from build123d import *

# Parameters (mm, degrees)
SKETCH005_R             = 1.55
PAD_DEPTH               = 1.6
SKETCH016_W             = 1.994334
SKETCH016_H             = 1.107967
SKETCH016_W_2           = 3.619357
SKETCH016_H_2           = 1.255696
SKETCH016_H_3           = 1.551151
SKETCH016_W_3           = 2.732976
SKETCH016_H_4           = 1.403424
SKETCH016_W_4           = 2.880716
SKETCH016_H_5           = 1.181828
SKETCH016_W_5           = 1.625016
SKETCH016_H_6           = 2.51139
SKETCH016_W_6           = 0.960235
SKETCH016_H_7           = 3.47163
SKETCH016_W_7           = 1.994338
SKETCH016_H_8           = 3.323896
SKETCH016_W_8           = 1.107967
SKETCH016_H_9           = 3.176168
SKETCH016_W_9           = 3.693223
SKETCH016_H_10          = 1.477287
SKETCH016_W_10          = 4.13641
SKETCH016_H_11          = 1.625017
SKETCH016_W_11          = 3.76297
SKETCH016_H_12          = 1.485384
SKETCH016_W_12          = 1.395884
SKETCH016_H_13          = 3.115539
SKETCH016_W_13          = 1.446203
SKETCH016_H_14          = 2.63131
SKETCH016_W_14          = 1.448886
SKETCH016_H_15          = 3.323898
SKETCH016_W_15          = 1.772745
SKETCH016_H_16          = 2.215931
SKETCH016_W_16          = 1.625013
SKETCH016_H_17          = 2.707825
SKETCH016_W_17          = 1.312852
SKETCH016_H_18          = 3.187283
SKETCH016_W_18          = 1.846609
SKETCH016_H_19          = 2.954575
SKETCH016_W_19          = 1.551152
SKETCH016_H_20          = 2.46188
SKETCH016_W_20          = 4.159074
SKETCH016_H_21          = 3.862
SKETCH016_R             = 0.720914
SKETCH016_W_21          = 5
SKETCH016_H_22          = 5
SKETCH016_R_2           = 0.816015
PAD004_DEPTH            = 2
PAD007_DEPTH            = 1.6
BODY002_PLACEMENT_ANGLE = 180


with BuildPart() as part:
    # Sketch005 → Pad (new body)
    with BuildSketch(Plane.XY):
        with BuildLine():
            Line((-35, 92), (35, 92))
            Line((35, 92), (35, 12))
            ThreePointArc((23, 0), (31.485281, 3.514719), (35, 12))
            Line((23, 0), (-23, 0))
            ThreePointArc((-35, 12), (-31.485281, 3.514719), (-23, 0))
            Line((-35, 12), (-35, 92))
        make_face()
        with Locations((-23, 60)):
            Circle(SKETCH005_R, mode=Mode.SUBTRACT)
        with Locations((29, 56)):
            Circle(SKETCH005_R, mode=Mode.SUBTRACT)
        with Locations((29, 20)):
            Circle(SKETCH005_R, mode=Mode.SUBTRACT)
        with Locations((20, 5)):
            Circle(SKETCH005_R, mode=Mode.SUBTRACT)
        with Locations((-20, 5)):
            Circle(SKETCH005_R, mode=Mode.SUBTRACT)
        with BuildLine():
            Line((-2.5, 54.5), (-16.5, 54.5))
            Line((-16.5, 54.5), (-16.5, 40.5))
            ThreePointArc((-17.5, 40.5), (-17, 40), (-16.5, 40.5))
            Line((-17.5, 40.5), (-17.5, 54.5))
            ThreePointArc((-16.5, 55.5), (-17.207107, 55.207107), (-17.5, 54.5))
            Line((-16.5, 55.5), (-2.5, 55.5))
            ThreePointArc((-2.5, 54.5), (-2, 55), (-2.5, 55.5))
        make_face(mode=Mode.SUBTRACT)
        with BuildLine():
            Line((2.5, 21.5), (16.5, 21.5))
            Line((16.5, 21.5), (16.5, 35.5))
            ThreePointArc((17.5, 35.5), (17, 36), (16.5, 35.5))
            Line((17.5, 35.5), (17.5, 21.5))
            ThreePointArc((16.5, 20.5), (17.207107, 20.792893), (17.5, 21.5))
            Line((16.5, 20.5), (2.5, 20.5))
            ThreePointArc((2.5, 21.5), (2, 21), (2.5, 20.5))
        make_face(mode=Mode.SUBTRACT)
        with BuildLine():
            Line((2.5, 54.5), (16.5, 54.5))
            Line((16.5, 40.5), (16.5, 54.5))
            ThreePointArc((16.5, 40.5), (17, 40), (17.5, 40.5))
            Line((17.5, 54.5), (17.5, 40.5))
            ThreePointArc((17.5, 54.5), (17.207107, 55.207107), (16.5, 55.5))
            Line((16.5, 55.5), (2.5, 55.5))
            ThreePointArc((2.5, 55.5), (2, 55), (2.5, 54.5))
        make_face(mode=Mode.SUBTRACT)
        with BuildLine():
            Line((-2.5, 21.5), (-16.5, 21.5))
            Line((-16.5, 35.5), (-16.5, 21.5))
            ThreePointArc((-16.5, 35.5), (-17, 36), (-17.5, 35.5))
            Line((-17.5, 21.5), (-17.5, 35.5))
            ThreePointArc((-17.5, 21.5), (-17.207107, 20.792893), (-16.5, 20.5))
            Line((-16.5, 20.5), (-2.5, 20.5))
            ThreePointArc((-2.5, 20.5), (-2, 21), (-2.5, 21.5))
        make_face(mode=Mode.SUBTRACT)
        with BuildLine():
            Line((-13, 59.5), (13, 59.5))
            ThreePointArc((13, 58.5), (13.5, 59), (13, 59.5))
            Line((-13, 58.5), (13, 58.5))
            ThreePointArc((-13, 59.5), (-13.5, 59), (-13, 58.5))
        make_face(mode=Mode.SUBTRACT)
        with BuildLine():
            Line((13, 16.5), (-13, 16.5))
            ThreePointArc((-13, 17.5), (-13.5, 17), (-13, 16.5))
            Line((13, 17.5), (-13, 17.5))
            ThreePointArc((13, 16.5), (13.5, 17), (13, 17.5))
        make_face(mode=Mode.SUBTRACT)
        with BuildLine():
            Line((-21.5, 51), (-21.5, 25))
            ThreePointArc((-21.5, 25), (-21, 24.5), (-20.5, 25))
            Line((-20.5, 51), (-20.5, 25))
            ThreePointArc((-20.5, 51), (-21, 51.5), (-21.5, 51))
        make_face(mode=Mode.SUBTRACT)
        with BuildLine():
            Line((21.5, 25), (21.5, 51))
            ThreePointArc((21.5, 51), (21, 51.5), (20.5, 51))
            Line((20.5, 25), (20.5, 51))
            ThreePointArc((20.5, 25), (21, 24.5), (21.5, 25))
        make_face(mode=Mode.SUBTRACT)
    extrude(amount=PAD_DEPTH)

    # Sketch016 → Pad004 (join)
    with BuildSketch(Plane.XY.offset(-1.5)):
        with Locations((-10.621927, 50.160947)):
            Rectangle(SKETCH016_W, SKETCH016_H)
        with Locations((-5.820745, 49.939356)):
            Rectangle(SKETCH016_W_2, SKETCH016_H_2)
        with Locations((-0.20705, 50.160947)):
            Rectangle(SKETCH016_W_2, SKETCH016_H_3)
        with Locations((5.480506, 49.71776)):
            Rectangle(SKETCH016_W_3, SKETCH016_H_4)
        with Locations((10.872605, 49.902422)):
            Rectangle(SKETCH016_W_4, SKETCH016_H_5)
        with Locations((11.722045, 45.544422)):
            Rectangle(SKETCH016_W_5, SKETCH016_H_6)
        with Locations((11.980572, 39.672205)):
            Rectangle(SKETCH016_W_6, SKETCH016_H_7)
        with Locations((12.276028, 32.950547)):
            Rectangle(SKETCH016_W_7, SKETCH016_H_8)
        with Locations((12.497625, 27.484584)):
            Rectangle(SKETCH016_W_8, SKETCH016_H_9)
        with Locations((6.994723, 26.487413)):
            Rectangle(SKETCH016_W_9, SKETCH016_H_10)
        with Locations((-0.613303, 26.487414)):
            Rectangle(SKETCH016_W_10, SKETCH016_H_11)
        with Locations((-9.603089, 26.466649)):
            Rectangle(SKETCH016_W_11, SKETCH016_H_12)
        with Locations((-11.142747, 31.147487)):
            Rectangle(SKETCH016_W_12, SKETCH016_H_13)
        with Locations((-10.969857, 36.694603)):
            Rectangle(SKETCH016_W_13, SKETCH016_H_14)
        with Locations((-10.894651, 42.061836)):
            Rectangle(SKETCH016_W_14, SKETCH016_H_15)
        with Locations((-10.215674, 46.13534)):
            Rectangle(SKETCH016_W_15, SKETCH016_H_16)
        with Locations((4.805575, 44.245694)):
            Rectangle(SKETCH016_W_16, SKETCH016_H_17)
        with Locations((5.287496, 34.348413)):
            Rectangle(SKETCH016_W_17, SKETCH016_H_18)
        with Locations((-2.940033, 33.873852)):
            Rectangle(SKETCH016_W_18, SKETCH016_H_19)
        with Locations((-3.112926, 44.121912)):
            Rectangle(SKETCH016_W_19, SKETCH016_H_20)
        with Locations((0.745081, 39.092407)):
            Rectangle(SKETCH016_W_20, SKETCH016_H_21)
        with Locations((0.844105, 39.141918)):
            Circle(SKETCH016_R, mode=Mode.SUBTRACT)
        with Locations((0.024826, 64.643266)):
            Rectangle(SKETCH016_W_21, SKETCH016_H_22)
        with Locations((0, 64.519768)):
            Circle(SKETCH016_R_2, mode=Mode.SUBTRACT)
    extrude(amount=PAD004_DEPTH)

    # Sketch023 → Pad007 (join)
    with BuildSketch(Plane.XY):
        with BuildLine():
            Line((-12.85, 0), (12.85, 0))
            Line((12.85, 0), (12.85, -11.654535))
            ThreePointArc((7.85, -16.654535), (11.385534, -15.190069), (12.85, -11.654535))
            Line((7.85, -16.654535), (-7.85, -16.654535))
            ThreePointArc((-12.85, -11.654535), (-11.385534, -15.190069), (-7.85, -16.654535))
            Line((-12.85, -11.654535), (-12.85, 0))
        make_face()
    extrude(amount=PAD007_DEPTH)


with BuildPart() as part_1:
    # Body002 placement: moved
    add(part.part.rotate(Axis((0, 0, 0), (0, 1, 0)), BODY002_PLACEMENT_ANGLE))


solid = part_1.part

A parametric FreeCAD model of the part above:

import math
import FreeCAD as App
import Part
import Sketcher

doc = App.newDocument("Part")
params = doc.addObject("Spreadsheet::Sheet", "Params")
for row, (alias, value) in enumerate([
    ("sketch1_radius", "12.000001 mm"),
    ("sketch1_radius2", "0.999999 mm"),
    ("sketch1_diameter", "3.1 mm"),
    ("sketch1_width", "70 mm"),
    ("sketch1_width2", "14 mm"),
    ("pad1_length", "1.6 mm"),
    ("sketch2_width", "5 mm"),
    ("pad2_length", "2 mm"),
    ("sketch3_radius", "5 mm"),
    ("sketch3_width", "25.7 mm"),
    ("pad3_length", "1.6 mm"),
], start=1):
    params.set(f"A{row}", alias)
    params.set(f"B{row}", "=" + value)
    params.setAlias(f"B{row}", alias)

body = doc.addObject("PartDesign::Body", "Body")

# Sketch on XY plane
sketch1 = body.newObject("Sketcher::SketchObject", "Sketch")
sketch1.AttachmentSupport = (doc.getObject("XY_Plane"), [""])
sketch1.MapMode = "FlatFace"
sketch1.addGeometry([
    Part.LineSegment(App.Vector(35, 92, 0), App.Vector(-35, 92, 0)),  # 0
    Part.LineSegment(App.Vector(-35, 92, 0), App.Vector(-35, 12, 0)),  # 1
    Part.ArcOfCircle(Part.Circle(App.Vector(-23, 12, 0), App.Vector(0, 0, 1), 12), math.radians(-180), math.radians(-90)),  # 2
    Part.LineSegment(App.Vector(-23, 0, 0), App.Vector(23, 0, 0)),  # 3
    Part.ArcOfCircle(Part.Circle(App.Vector(23, 12, 0), App.Vector(0, 0, 1), 12), math.radians(-90), math.radians(0)),  # 4
    Part.LineSegment(App.Vector(35, 12, 0), App.Vector(35, 92, 0)),  # 5
    Part.Circle(App.Vector(20, 5, 0), App.Vector(0, 0, 1), 1.6),  # 6
    Part.Circle(App.Vector(29, 20, 0), App.Vector(0, 0, 1), 1.6),  # 7
    Part.LineSegment(App.Vector(2.5, 21.5, 0), App.Vector(16.5, 21.5, 0)),  # 8
    Part.LineSegment(App.Vector(16.5, 21.5, 0), App.Vector(16.5, 35.5, 0)),  # 9
    Part.ArcOfCircle(Part.Circle(App.Vector(17, 35.5, 0), App.Vector(0, 0, 1), 0.5), math.radians(0), math.radians(180)),  # 10
    Part.LineSegment(App.Vector(17.5, 35.5, 0), App.Vector(17.5, 21.5, 0)),  # 11
    Part.ArcOfCircle(Part.Circle(App.Vector(16.5, 21.5, 0), App.Vector(0, 0, 1), 1), math.radians(-90), math.radians(0)),  # 12
    Part.LineSegment(App.Vector(16.5, 20.5, 0), App.Vector(2.5, 20.5, 0)),  # 13
    Part.ArcOfCircle(Part.Circle(App.Vector(2.5, 21, 0), App.Vector(0, 0, 1), 0.5), math.radians(90), math.radians(270)),  # 14
    Part.LineSegment(App.Vector(13, 16.5, 0), App.Vector(-13, 16.5, 0)),  # 15
    Part.ArcOfCircle(Part.Circle(App.Vector(-13, 17, 0), App.Vector(0, 0, 1), 0.5), math.radians(90), math.radians(270)),  # 16
    Part.LineSegment(App.Vector(-13, 17.5, 0), App.Vector(13, 17.5, 0)),  # 17
    Part.ArcOfCircle(Part.Circle(App.Vector(13, 17, 0), App.Vector(0, 0, 1), 0.5), math.radians(-90), math.radians(90)),  # 18
    Part.Circle(App.Vector(-20, 5, 0), App.Vector(0, 0, 1), 1.6),  # 19
    Part.ArcOfCircle(Part.Circle(App.Vector(-2.5, 21, 0), App.Vector(0, 0, 1), 0.5), math.radians(-90), math.radians(90)),  # 20
    Part.LineSegment(App.Vector(-2.5, 20.5, 0), App.Vector(-16.5, 20.5, 0)),  # 21
    Part.ArcOfCircle(Part.Circle(App.Vector(-16.5, 21.5, 0), App.Vector(0, 0, 1), 1), math.radians(180), math.radians(270)),  # 22
    Part.LineSegment(App.Vector(-17.5, 21.5, 0), App.Vector(-17.5, 35.5, 0)),  # 23
    Part.ArcOfCircle(Part.Circle(App.Vector(-17, 35.5, 0), App.Vector(0, 0, 1), 0.5), math.radians(0), math.radians(180)),  # 24
    Part.LineSegment(App.Vector(-16.5, 35.5, 0), App.Vector(-16.5, 21.5, 0)),  # 25
    Part.LineSegment(App.Vector(-16.5, 21.5, 0), App.Vector(-2.5, 21.5, 0)),  # 26
    Part.ArcOfCircle(Part.Circle(App.Vector(21, 25, 0), App.Vector(0, 0, 1), 0.5), math.radians(180), math.radians(360)),  # 27
    Part.LineSegment(App.Vector(20.5, 25, 0), App.Vector(20.5, 51, 0)),  # 28
    Part.ArcOfCircle(Part.Circle(App.Vector(21, 51, 0), App.Vector(0, 0, 1), 0.5), math.radians(0), math.radians(180)),  # 29
    Part.LineSegment(App.Vector(21.5, 51, 0), App.Vector(21.5, 25, 0)),  # 30
    Part.Circle(App.Vector(29, 56, 0), App.Vector(0, 0, 1), 1.6),  # 31
    Part.ArcOfCircle(Part.Circle(App.Vector(2.5, 55, 0), App.Vector(0, 0, 1), 0.5), math.radians(90), math.radians(270)),  # 32
    Part.LineSegment(App.Vector(2.5, 55.5, 0), App.Vector(16.5, 55.5, 0)),  # 33
    Part.ArcOfCircle(Part.Circle(App.Vector(16.5, 54.5, 0), App.Vector(0, 0, 1), 1), math.radians(0), math.radians(90)),  # 34
    Part.LineSegment(App.Vector(17.5, 54.5, 0), App.Vector(17.5, 40.5, 0)),  # 35
    Part.ArcOfCircle(Part.Circle(App.Vector(17, 40.5, 0), App.Vector(0, 0, 1), 0.5), math.radians(180), math.radians(360)),  # 36
    Part.LineSegment(App.Vector(16.5, 40.5, 0), App.Vector(16.5, 54.5, 0)),  # 37
    Part.LineSegment(App.Vector(16.5, 54.5, 0), App.Vector(2.5, 54.5, 0)),  # 38
    Part.ArcOfCircle(Part.Circle(App.Vector(-21, 51, 0), App.Vector(0, 0, 1), 0.5), math.radians(0), math.radians(180)),  # 39
    Part.LineSegment(App.Vector(-20.5, 51, 0), App.Vector(-20.5, 25, 0)),  # 40
    Part.ArcOfCircle(Part.Circle(App.Vector(-21, 25, 0), App.Vector(0, 0, 1), 0.5), math.radians(180), math.radians(360)),  # 41
    Part.LineSegment(App.Vector(-21.5, 25, 0), App.Vector(-21.5, 51, 0)),  # 42
    Part.LineSegment(App.Vector(-2.5, 54.5, 0), App.Vector(-16.5, 54.5, 0)),  # 43
    Part.LineSegment(App.Vector(-16.5, 54.5, 0), App.Vector(-16.5, 40.5, 0)),  # 44
    Part.ArcOfCircle(Part.Circle(App.Vector(-17, 40.5, 0), App.Vector(0, 0, 1), 0.5), math.radians(180), math.radians(360)),  # 45
    Part.LineSegment(App.Vector(-17.5, 40.5, 0), App.Vector(-17.5, 54.5, 0)),  # 46
    Part.ArcOfCircle(Part.Circle(App.Vector(-16.5, 54.5, 0), App.Vector(0, 0, 1), 1), math.radians(90), math.radians(180)),  # 47
    Part.LineSegment(App.Vector(-16.5, 55.5, 0), App.Vector(-2.5, 55.5, 0)),  # 48
    Part.ArcOfCircle(Part.Circle(App.Vector(-2.5, 55, 0), App.Vector(0, 0, 1), 0.5), math.radians(-90), math.radians(90)),  # 49
    Part.LineSegment(App.Vector(-13, 59.5, 0), App.Vector(13, 59.5, 0)),  # 50
    Part.ArcOfCircle(Part.Circle(App.Vector(13, 59, 0), App.Vector(0, 0, 1), 0.5), math.radians(-90), math.radians(90)),  # 51
    Part.LineSegment(App.Vector(13, 58.5, 0), App.Vector(-13, 58.5, 0)),  # 52
    Part.ArcOfCircle(Part.Circle(App.Vector(-13, 59, 0), App.Vector(0, 0, 1), 0.5), math.radians(90), math.radians(270)),  # 53
    Part.Circle(App.Vector(-23, 60, 0), App.Vector(0, 0, 1), 1.6),  # 54
], False)
sketch1.addConstraint([
    Sketcher.Constraint("Coincident", 0, 2, 1, 1),
    Sketcher.Constraint("Tangent", 1, 2, 2, 1),
    Sketcher.Constraint("Tangent", 2, 2, 3, 1),
    Sketcher.Constraint("Tangent", 3, 2, 4, 1),
    Sketcher.Constraint("Tangent", 4, 2, 5, 1),
    Sketcher.Constraint("Coincident", 5, 2, 0, 1),
    Sketcher.Constraint("Coincident", 8, 2, 9, 1),
    Sketcher.Constraint("Tangent", 9, 2, 10, 2),
    Sketcher.Constraint("Tangent", 10, 1, 11, 1),
    Sketcher.Constraint("Tangent", 11, 2, 12, 2),
    Sketcher.Constraint("Tangent", 12, 1, 13, 1),
    Sketcher.Constraint("Tangent", 13, 2, 14, 2),
    Sketcher.Constraint("Tangent", 14, 1, 8, 1),
    Sketcher.Constraint("Tangent", 15, 2, 16, 2),
    Sketcher.Constraint("Tangent", 16, 1, 17, 1),
    Sketcher.Constraint("Tangent", 17, 2, 18, 2),
    Sketcher.Constraint("Tangent", 18, 1, 15, 1),
    Sketcher.Constraint("Tangent", 20, 1, 21, 1),
    Sketcher.Constraint("Tangent", 21, 2, 22, 2),
    Sketcher.Constraint("Tangent", 22, 1, 23, 1),
    Sketcher.Constraint("Tangent", 23, 2, 24, 2),
    Sketcher.Constraint("Tangent", 24, 1, 25, 1),
    Sketcher.Constraint("Coincident", 25, 2, 26, 1),
    Sketcher.Constraint("Tangent", 26, 2, 20, 2),
    Sketcher.Constraint("Tangent", 27, 1, 28, 1),
    Sketcher.Constraint("Tangent", 28, 2, 29, 2),
    Sketcher.Constraint("Tangent", 29, 1, 30, 1),
    Sketcher.Constraint("Tangent", 30, 2, 27, 2),
    Sketcher.Constraint("Tangent", 32, 1, 33, 1),
    Sketcher.Constraint("Tangent", 33, 2, 34, 2),
    Sketcher.Constraint("Tangent", 34, 1, 35, 1),
    Sketcher.Constraint("Tangent", 35, 2, 36, 2),
    Sketcher.Constraint("Tangent", 36, 1, 37, 1),
    Sketcher.Constraint("Coincident", 37, 2, 38, 1),
    Sketcher.Constraint("Tangent", 38, 2, 32, 2),
    Sketcher.Constraint("Tangent", 39, 1, 40, 1),
    Sketcher.Constraint("Tangent", 40, 2, 41, 2),
    Sketcher.Constraint("Tangent", 41, 1, 42, 1),
    Sketcher.Constraint("Tangent", 42, 2, 39, 2),
    Sketcher.Constraint("Coincident", 43, 2, 44, 1),
    Sketcher.Constraint("Tangent", 44, 2, 45, 2),
    Sketcher.Constraint("Tangent", 45, 1, 46, 1),
    Sketcher.Constraint("Tangent", 46, 2, 47, 2),
    Sketcher.Constraint("Tangent", 47, 1, 48, 1),
    Sketcher.Constraint("Tangent", 48, 2, 49, 2),
    Sketcher.Constraint("Tangent", 49, 1, 43, 1),
    Sketcher.Constraint("Tangent", 50, 2, 51, 2),
    Sketcher.Constraint("Tangent", 51, 1, 52, 1),
    Sketcher.Constraint("Tangent", 52, 2, 53, 2),
    Sketcher.Constraint("Tangent", 53, 1, 50, 1),
    Sketcher.Constraint("Horizontal", 0),
    Sketcher.Constraint("Vertical", 1),
    Sketcher.Constraint("Horizontal", 3),
    Sketcher.Constraint("Vertical", 5),
    Sketcher.Constraint("Horizontal", 8),
    Sketcher.Constraint("Vertical", 9),
    Sketcher.Constraint("Vertical", 11),
    Sketcher.Constraint("Horizontal", 13),
    Sketcher.Constraint("Horizontal", 15),
    Sketcher.Constraint("Horizontal", 17),
    Sketcher.Constraint("Horizontal", 21),
    Sketcher.Constraint("Vertical", 23),
    Sketcher.Constraint("Vertical", 25),
    Sketcher.Constraint("Horizontal", 26),
    Sketcher.Constraint("Vertical", 28),
    Sketcher.Constraint("Vertical", 30),
    Sketcher.Constraint("Horizontal", 33),
    Sketcher.Constraint("Vertical", 35),
    Sketcher.Constraint("Vertical", 37),
    Sketcher.Constraint("Horizontal", 38),
    Sketcher.Constraint("Vertical", 40),
    Sketcher.Constraint("Vertical", 42),
    Sketcher.Constraint("Horizontal", 43),
    Sketcher.Constraint("Vertical", 44),
    Sketcher.Constraint("Vertical", 46),
    Sketcher.Constraint("Horizontal", 48),
    Sketcher.Constraint("Horizontal", 50),
    Sketcher.Constraint("Horizontal", 52),
    Sketcher.Constraint("Coincident", 8, 2, 12, 3),
    Sketcher.Constraint("Coincident", 25, 2, 22, 3),
    Sketcher.Constraint("Coincident", 37, 2, 34, 3),
    Sketcher.Constraint("Coincident", 43, 2, 47, 3),
    Sketcher.Constraint("Equal", 2, 4),
    Sketcher.Constraint("Equal", 6, 7),
    Sketcher.Constraint("Equal", 14, 16),
    Sketcher.Constraint("Equal", 7, 19),
    Sketcher.Constraint("Equal", 18, 20),
    Sketcher.Constraint("Equal", 24, 27),
    Sketcher.Constraint("Equal", 19, 31),
    Sketcher.Constraint("Equal", 29, 32),
    Sketcher.Constraint("Equal", 36, 39),
    Sketcher.Constraint("Equal", 41, 45),
    Sketcher.Constraint("Equal", 49, 51),
    Sketcher.Constraint("Equal", 31, 54),
    Sketcher.Constraint("Symmetric", 2, 2, 3, 2, -1, 1),
    Sketcher.Constraint("Symmetric", 6, 3, 19, 3, -2),
    Sketcher.Constraint("Symmetric", 14, 3, 20, 3, -2),
    Sketcher.Constraint("Symmetric", 10, 3, 24, 3, -2),
    Sketcher.Constraint("Symmetric", 29, 3, 39, 3, -2),
    Sketcher.Constraint("Symmetric", 36, 3, 45, 3, -2),
    Sketcher.Constraint("Symmetric", 32, 3, 49, 3, -2),
    Sketcher.Constraint("Horizontal", 27, 3, 41, 3),
    Sketcher.Constraint("Vertical", 7, 3, 31, 3),
    Sketcher.Constraint("Vertical", 14, 3, 32, 3),
    Sketcher.Constraint("Vertical", 12, 3, 34, 3),
    Sketcher.Constraint("Vertical", 18, 3, 51, 3),
    Sketcher.Constraint("Vertical", 16, 3, 53, 3),
    Sketcher.Constraint("Vertical", 2, 3, 54, 3),
    Sketcher.Constraint("Equal", 48, 9),
    Sketcher.Constraint("Equal", 52, 28),
    Sketcher.Constraint("Equal", 25, 35),
    Sketcher.Constraint("Radius", 2, 12.000001),
    Sketcher.Constraint("Radius", 12, 0.999999),
    Sketcher.Constraint("Diameter", 6, 3.1),
    Sketcher.Constraint("DistanceX", 0, 2, 0, 1, 70.0),
    Sketcher.Constraint("DistanceX", 8, 1, 8, 2, 14.0),
    Sketcher.Constraint("DistanceX", 15, 2, 15, 1, 26.0),
    Sketcher.Constraint("DistanceY", 1, 2, 1, 1, 80.0),
    Sketcher.Constraint("DistanceX", -1, 1, 6, 3, 20.0),
    Sketcher.Constraint("DistanceY", -1, 1, 6, 3, 5.0),
    Sketcher.Constraint("DistanceX", -1, 1, 7, 3, 29.0),
    Sketcher.Constraint("DistanceY", -1, 1, 7, 3, 20.0),
    Sketcher.Constraint("DistanceX", -1, 1, 10, 3, 17.0),
    Sketcher.Constraint("DistanceY", -1, 1, 14, 3, 21.0),
    Sketcher.Constraint("DistanceX", 16, 3, -1, 1, 13.0),
    Sketcher.Constraint("DistanceY", -1, 1, 16, 3, 17.0),
    Sketcher.Constraint("DistanceX", -1, 1, 27, 3, 21.0),
    Sketcher.Constraint("DistanceY", -1, 1, 27, 3, 25.0),
    Sketcher.Constraint("DistanceY", -1, 1, 31, 3, 56.0),
    Sketcher.Constraint("DistanceY", -1, 1, 32, 3, 55.0),
    Sketcher.Constraint("DistanceY", -1, 1, 51, 3, 59.0),
    Sketcher.Constraint("DistanceY", -1, 1, 54, 3, 60.0),
])
sketch1.setExpression("Constraints[111]", "Params.sketch1_radius")
sketch1.setExpression("Constraints[112]", "Params.sketch1_radius2")
sketch1.setExpression("Constraints[113]", "Params.sketch1_diameter")
sketch1.setExpression("Constraints[114]", "Params.sketch1_width")
sketch1.setExpression("Constraints[115]", "Params.sketch1_width2")
pad1 = body.newObject("PartDesign::Pad", "Pad")
pad1.Profile = sketch1
pad1.setExpression("Length", "Params.pad1_length")

# Sketch on XY plane
sketch2 = body.newObject("Sketcher::SketchObject", "Sketch001")
sketch2.AttachmentSupport = (doc.getObject("XY_Plane"), [""])
sketch2.MapMode = "FlatFace"
sketch2.AttachmentOffset = App.Placement(App.Vector(0, 0, -1.5), App.Rotation())
sketch2.addGeometry([
    Part.LineSegment(App.Vector(-11.6, 50.7, 0), App.Vector(-11.6, 49.6, 0)),  # 0
    Part.LineSegment(App.Vector(-11.6, 49.6, 0), App.Vector(-9.6, 49.6, 0)),  # 1
    Part.LineSegment(App.Vector(-9.6, 49.6, 0), App.Vector(-9.6, 50.7, 0)),  # 2
    Part.LineSegment(App.Vector(-9.6, 50.7, 0), App.Vector(-11.6, 50.7, 0)),  # 3
    Part.LineSegment(App.Vector(-7.6, 50.6, 0), App.Vector(-7.6, 49.3, 0)),  # 4
    Part.LineSegment(App.Vector(-7.6, 49.3, 0), App.Vector(-4, 49.3, 0)),  # 5
    Part.LineSegment(App.Vector(-4, 49.3, 0), App.Vector(-4, 50.6, 0)),  # 6
    Part.LineSegment(App.Vector(-4, 50.6, 0), App.Vector(-7.6, 50.6, 0)),  # 7
    Part.LineSegment(App.Vector(-2, 50.9, 0), App.Vector(-2, 49.4, 0)),  # 8
    Part.LineSegment(App.Vector(-2, 49.4, 0), App.Vector(1.6, 49.4, 0)),  # 9
    Part.LineSegment(App.Vector(1.6, 49.4, 0), App.Vector(1.6, 50.9, 0)),  # 10
    Part.LineSegment(App.Vector(1.6, 50.9, 0), App.Vector(-2, 50.9, 0)),  # 11
    Part.LineSegment(App.Vector(4.1, 50.4, 0), App.Vector(4.1, 49, 0)),  # 12
    Part.LineSegment(App.Vector(4.1, 49, 0), App.Vector(6.8, 49, 0)),  # 13
    Part.LineSegment(App.Vector(6.8, 49, 0), App.Vector(6.8, 50.4, 0)),  # 14
    Part.LineSegment(App.Vector(6.8, 50.4, 0), App.Vector(4.1, 50.4, 0)),  # 15
    Part.LineSegment(App.Vector(9.4, 50.5, 0), App.Vector(9.4, 49.3, 0)),  # 16
    Part.LineSegment(App.Vector(9.4, 49.3, 0), App.Vector(12.3, 49.3, 0)),  # 17
    Part.LineSegment(App.Vector(12.3, 49.3, 0), App.Vector(12.3, 50.5, 0)),  # 18
    Part.LineSegment(App.Vector(12.3, 50.5, 0), App.Vector(9.4, 50.5, 0)),  # 19
    Part.LineSegment(App.Vector(10.9, 46.8, 0), App.Vector(10.9, 44.3, 0)),  # 20
    Part.LineSegment(App.Vector(10.9, 44.3, 0), App.Vector(12.5, 44.3, 0)),  # 21
    Part.LineSegment(App.Vector(12.5, 44.3, 0), App.Vector(12.5, 46.8, 0)),  # 22
    Part.LineSegment(App.Vector(12.5, 46.8, 0), App.Vector(10.9, 46.8, 0)),  # 23
    Part.LineSegment(App.Vector(11.5, 41.4, 0), App.Vector(11.5, 37.9, 0)),  # 24
    Part.LineSegment(App.Vector(11.5, 37.9, 0), App.Vector(12.5, 37.9, 0)),  # 25
    Part.LineSegment(App.Vector(12.5, 37.9, 0), App.Vector(12.5, 41.4, 0)),  # 26
    Part.LineSegment(App.Vector(12.5, 41.4, 0), App.Vector(11.5, 41.4, 0)),  # 27
    Part.LineSegment(App.Vector(11.3, 34.6, 0), App.Vector(11.3, 31.3, 0)),  # 28
    Part.LineSegment(App.Vector(11.3, 31.3, 0), App.Vector(13.3, 31.3, 0)),  # 29
    Part.LineSegment(App.Vector(13.3, 31.3, 0), App.Vector(13.3, 34.6, 0)),  # 30
    Part.LineSegment(App.Vector(13.3, 34.6, 0), App.Vector(11.3, 34.6, 0)),  # 31
    Part.LineSegment(App.Vector(11.9, 29.1, 0), App.Vector(11.9, 25.9, 0)),  # 32
    Part.LineSegment(App.Vector(11.9, 25.9, 0), App.Vector(13.1, 25.9, 0)),  # 33
    Part.LineSegment(App.Vector(13.1, 25.9, 0), App.Vector(13.1, 29.1, 0)),  # 34
    Part.LineSegment(App.Vector(13.1, 29.1, 0), App.Vector(11.9, 29.1, 0)),  # 35
    Part.LineSegment(App.Vector(5.1, 27.2, 0), App.Vector(5.1, 25.7, 0)),  # 36
    Part.LineSegment(App.Vector(5.1, 25.7, 0), App.Vector(8.8, 25.7, 0)),  # 37
    Part.LineSegment(App.Vector(8.8, 25.7, 0), App.Vector(8.8, 27.2, 0)),  # 38
    Part.LineSegment(App.Vector(8.8, 27.2, 0), App.Vector(5.1, 27.2, 0)),  # 39
    Part.LineSegment(App.Vector(-2.7, 27.3, 0), App.Vector(-2.7, 25.7, 0)),  # 40
    Part.LineSegment(App.Vector(-2.7, 25.7, 0), App.Vector(1.5, 25.7, 0)),  # 41
    Part.LineSegment(App.Vector(1.5, 25.7, 0), App.Vector(1.5, 27.3, 0)),  # 42
    Part.LineSegment(App.Vector(1.5, 27.3, 0), App.Vector(-2.7, 27.3, 0)),  # 43
    Part.LineSegment(App.Vector(-11.5, 27.2, 0), App.Vector(-11.5, 25.7, 0)),  # 44
    Part.LineSegment(App.Vector(-11.5, 25.7, 0), App.Vector(-7.7, 25.7, 0)),  # 45
    Part.LineSegment(App.Vector(-7.7, 25.7, 0), App.Vector(-7.7, 27.2, 0)),  # 46
    Part.LineSegment(App.Vector(-7.7, 27.2, 0), App.Vector(-11.5, 27.2, 0)),  # 47
    Part.LineSegment(App.Vector(-11.8, 32.7, 0), App.Vector(-11.8, 29.6, 0)),  # 48
    Part.LineSegment(App.Vector(-11.8, 29.6, 0), App.Vector(-10.4, 29.6, 0)),  # 49
    Part.LineSegment(App.Vector(-10.4, 29.6, 0), App.Vector(-10.4, 32.7, 0)),  # 50
    Part.LineSegment(App.Vector(-10.4, 32.7, 0), App.Vector(-11.8, 32.7, 0)),  # 51
    Part.LineSegment(App.Vector(-11.7, 38, 0), App.Vector(-11.7, 35.4, 0)),  # 52
    Part.LineSegment(App.Vector(-11.7, 35.4, 0), App.Vector(-10.2, 35.4, 0)),  # 53
    Part.LineSegment(App.Vector(-10.2, 35.4, 0), App.Vector(-10.2, 38, 0)),  # 54
    Part.LineSegment(App.Vector(-10.2, 38, 0), App.Vector(-11.7, 38, 0)),  # 55
    Part.LineSegment(App.Vector(-11.6, 43.7, 0), App.Vector(-11.6, 40.4, 0)),  # 56
    Part.LineSegment(App.Vector(-11.6, 40.4, 0), App.Vector(-10.2, 40.4, 0)),  # 57
    Part.LineSegment(App.Vector(-10.2, 40.4, 0), App.Vector(-10.2, 43.7, 0)),  # 58
    Part.LineSegment(App.Vector(-10.2, 43.7, 0), App.Vector(-11.6, 43.7, 0)),  # 59
    Part.LineSegment(App.Vector(-11.1, 47.2, 0), App.Vector(-11.1, 45, 0)),  # 60
    Part.LineSegment(App.Vector(-11.1, 45, 0), App.Vector(-9.3, 45, 0)),  # 61
    Part.LineSegment(App.Vector(-9.3, 45, 0), App.Vector(-9.3, 47.2, 0)),  # 62
    Part.LineSegment(App.Vector(-9.3, 47.2, 0), App.Vector(-11.1, 47.2, 0)),  # 63
    Part.LineSegment(App.Vector(4, 45.6, 0), App.Vector(4, 42.9, 0)),  # 64
    Part.LineSegment(App.Vector(4, 42.9, 0), App.Vector(5.6, 42.9, 0)),  # 65
    Part.LineSegment(App.Vector(5.6, 42.9, 0), App.Vector(5.6, 45.6, 0)),  # 66
    Part.LineSegment(App.Vector(5.6, 45.6, 0), App.Vector(4, 45.6, 0)),  # 67
    Part.LineSegment(App.Vector(4.6, 35.9, 0), App.Vector(4.6, 32.8, 0)),  # 68
    Part.LineSegment(App.Vector(4.6, 32.8, 0), App.Vector(5.9, 32.8, 0)),  # 69
    Part.LineSegment(App.Vector(5.9, 32.8, 0), App.Vector(5.9, 35.9, 0)),  # 70
    Part.LineSegment(App.Vector(5.9, 35.9, 0), App.Vector(4.6, 35.9, 0)),  # 71
    Part.LineSegment(App.Vector(-3.9, 35.4, 0), App.Vector(-3.9, 32.4, 0)),  # 72
    Part.LineSegment(App.Vector(-3.9, 32.4, 0), App.Vector(-2, 32.4, 0)),  # 73
    Part.LineSegment(App.Vector(-2, 32.4, 0), App.Vector(-2, 35.4, 0)),  # 74
    Part.LineSegment(App.Vector(-2, 35.4, 0), App.Vector(-3.9, 35.4, 0)),  # 75
    Part.LineSegment(App.Vector(-3.9, 45.4, 0), App.Vector(-3.9, 42.9, 0)),  # 76
    Part.LineSegment(App.Vector(-3.9, 42.9, 0), App.Vector(-2.3, 42.9, 0)),  # 77
    Part.LineSegment(App.Vector(-2.3, 42.9, 0), App.Vector(-2.3, 45.4, 0)),  # 78
    Part.LineSegment(App.Vector(-2.3, 45.4, 0), App.Vector(-3.9, 45.4, 0)),  # 79
    Part.LineSegment(App.Vector(-1.3, 41, 0), App.Vector(-1.3, 37.2, 0)),  # 80
    Part.LineSegment(App.Vector(-1.3, 37.2, 0), App.Vector(2.8, 37.2, 0)),  # 81
    Part.LineSegment(App.Vector(2.8, 37.2, 0), App.Vector(2.8, 41, 0)),  # 82
    Part.LineSegment(App.Vector(2.8, 41, 0), App.Vector(-1.3, 41, 0)),  # 83
    Part.Circle(App.Vector(0.8, 39.1, 0), App.Vector(0, 0, 1), 0.7),  # 84
    Part.LineSegment(App.Vector(-2.5, 67.1, 0), App.Vector(-2.5, 62.1, 0)),  # 85
    Part.LineSegment(App.Vector(-2.5, 62.1, 0), App.Vector(2.5, 62.1, 0)),  # 86
    Part.LineSegment(App.Vector(2.5, 62.1, 0), App.Vector(2.5, 67.1, 0)),  # 87
    Part.LineSegment(App.Vector(2.5, 67.1, 0), App.Vector(-2.5, 67.1, 0)),  # 88
    Part.Circle(App.Vector(0, 64.5, 0), App.Vector(0, 0, 1), 0.8),  # 89
], False)
sketch2.addConstraint([
    Sketcher.Constraint("Coincident", 0, 2, 1, 1),
    Sketcher.Constraint("Coincident", 1, 2, 2, 1),
    Sketcher.Constraint("Coincident", 2, 2, 3, 1),
    Sketcher.Constraint("Coincident", 3, 2, 0, 1),
    Sketcher.Constraint("Coincident", 4, 2, 5, 1),
    Sketcher.Constraint("Coincident", 5, 2, 6, 1),
    Sketcher.Constraint("Coincident", 6, 2, 7, 1),
    Sketcher.Constraint("Coincident", 7, 2, 4, 1),
    Sketcher.Constraint("Coincident", 8, 2, 9, 1),
    Sketcher.Constraint("Coincident", 9, 2, 10, 1),
    Sketcher.Constraint("Coincident", 10, 2, 11, 1),
    Sketcher.Constraint("Coincident", 11, 2, 8, 1),
    Sketcher.Constraint("Coincident", 12, 2, 13, 1),
    Sketcher.Constraint("Coincident", 13, 2, 14, 1),
    Sketcher.Constraint("Coincident", 14, 2, 15, 1),
    Sketcher.Constraint("Coincident", 15, 2, 12, 1),
    Sketcher.Constraint("Coincident", 16, 2, 17, 1),
    Sketcher.Constraint("Coincident", 17, 2, 18, 1),
    Sketcher.Constraint("Coincident", 18, 2, 19, 1),
    Sketcher.Constraint("Coincident", 19, 2, 16, 1),
    Sketcher.Constraint("Coincident", 20, 2, 21, 1),
    Sketcher.Constraint("Coincident", 21, 2, 22, 1),
    Sketcher.Constraint("Coincident", 22, 2, 23, 1),
    Sketcher.Constraint("Coincident", 23, 2, 20, 1),
    Sketcher.Constraint("Coincident", 24, 2, 25, 1),
    Sketcher.Constraint("Coincident", 25, 2, 26, 1),
    Sketcher.Constraint("Coincident", 26, 2, 27, 1),
    Sketcher.Constraint("Coincident", 27, 2, 24, 1),
    Sketcher.Constraint("Coincident", 28, 2, 29, 1),
    Sketcher.Constraint("Coincident", 29, 2, 30, 1),
    Sketcher.Constraint("Coincident", 30, 2, 31, 1),
    Sketcher.Constraint("Coincident", 31, 2, 28, 1),
    Sketcher.Constraint("Coincident", 32, 2, 33, 1),
    Sketcher.Constraint("Coincident", 33, 2, 34, 1),
    Sketcher.Constraint("Coincident", 34, 2, 35, 1),
    Sketcher.Constraint("Coincident", 35, 2, 32, 1),
    Sketcher.Constraint("Coincident", 36, 2, 37, 1),
    Sketcher.Constraint("Coincident", 37, 2, 38, 1),
    Sketcher.Constraint("Coincident", 38, 2, 39, 1),
    Sketcher.Constraint("Coincident", 39, 2, 36, 1),
    Sketcher.Constraint("Coincident", 40, 2, 41, 1),
    Sketcher.Constraint("Coincident", 41, 2, 42, 1),
    Sketcher.Constraint("Coincident", 42, 2, 43, 1),
    Sketcher.Constraint("Coincident", 43, 2, 40, 1),
    Sketcher.Constraint("Coincident", 44, 2, 45, 1),
    Sketcher.Constraint("Coincident", 45, 2, 46, 1),
    Sketcher.Constraint("Coincident", 46, 2, 47, 1),
    Sketcher.Constraint("Coincident", 47, 2, 44, 1),
    Sketcher.Constraint("Coincident", 48, 2, 49, 1),
    Sketcher.Constraint("Coincident", 49, 2, 50, 1),
    Sketcher.Constraint("Coincident", 50, 2, 51, 1),
    Sketcher.Constraint("Coincident", 51, 2, 48, 1),
    Sketcher.Constraint("Coincident", 52, 2, 53, 1),
    Sketcher.Constraint("Coincident", 53, 2, 54, 1),
    Sketcher.Constraint("Coincident", 54, 2, 55, 1),
    Sketcher.Constraint("Coincident", 55, 2, 52, 1),
    Sketcher.Constraint("Coincident", 56, 2, 57, 1),
    Sketcher.Constraint("Coincident", 57, 2, 58, 1),
    Sketcher.Constraint("Coincident", 58, 2, 59, 1),
    Sketcher.Constraint("Coincident", 59, 2, 56, 1),
    Sketcher.Constraint("Coincident", 60, 2, 61, 1),
    Sketcher.Constraint("Coincident", 61, 2, 62, 1),
    Sketcher.Constraint("Coincident", 62, 2, 63, 1),
    Sketcher.Constraint("Coincident", 63, 2, 60, 1),
    Sketcher.Constraint("Coincident", 64, 2, 65, 1),
    Sketcher.Constraint("Coincident", 65, 2, 66, 1),
    Sketcher.Constraint("Coincident", 66, 2, 67, 1),
    Sketcher.Constraint("Coincident", 67, 2, 64, 1),
    Sketcher.Constraint("Coincident", 68, 2, 69, 1),
    Sketcher.Constraint("Coincident", 69, 2, 70, 1),
    Sketcher.Constraint("Coincident", 70, 2, 71, 1),
    Sketcher.Constraint("Coincident", 71, 2, 68, 1),
    Sketcher.Constraint("Coincident", 72, 2, 73, 1),
    Sketcher.Constraint("Coincident", 73, 2, 74, 1),
    Sketcher.Constraint("Coincident", 74, 2, 75, 1),
    Sketcher.Constraint("Coincident", 75, 2, 72, 1),
    Sketcher.Constraint("Coincident", 76, 2, 77, 1),
    Sketcher.Constraint("Coincident", 77, 2, 78, 1),
    Sketcher.Constraint("Coincident", 78, 2, 79, 1),
    Sketcher.Constraint("Coincident", 79, 2, 76, 1),
    Sketcher.Constraint("Coincident", 80, 2, 81, 1),
    Sketcher.Constraint("Coincident", 81, 2, 82, 1),
    Sketcher.Constraint("Coincident", 82, 2, 83, 1),
    Sketcher.Constraint("Coincident", 83, 2, 80, 1),
    Sketcher.Constraint("Coincident", 85, 2, 86, 1),
    Sketcher.Constraint("Coincident", 86, 2, 87, 1),
    Sketcher.Constraint("Coincident", 87, 2, 88, 1),
    Sketcher.Constraint("Coincident", 88, 2, 85, 1),
    Sketcher.Constraint("Vertical", 0),
    Sketcher.Constraint("Horizontal", 1),
    Sketcher.Constraint("Vertical", 2),
    Sketcher.Constraint("Horizontal", 3),
    Sketcher.Constraint("Vertical", 4),
    Sketcher.Constraint("Horizontal", 5),
    Sketcher.Constraint("Vertical", 6),
    Sketcher.Constraint("Horizontal", 7),
    Sketcher.Constraint("Vertical", 8),
    Sketcher.Constraint("Horizontal", 9),
    Sketcher.Constraint("Vertical", 10),
    Sketcher.Constraint("Horizontal", 11),
    Sketcher.Constraint("Vertical", 12),
    Sketcher.Constraint("Horizontal", 13),
    Sketcher.Constraint("Vertical", 14),
    Sketcher.Constraint("Horizontal", 15),
    Sketcher.Constraint("Vertical", 16),
    Sketcher.Constraint("Horizontal", 17),
    Sketcher.Constraint("Vertical", 18),
    Sketcher.Constraint("Horizontal", 19),
    Sketcher.Constraint("Vertical", 20),
    Sketcher.Constraint("Horizontal", 21),
    Sketcher.Constraint("Vertical", 22),
    Sketcher.Constraint("Horizontal", 23),
    Sketcher.Constraint("Vertical", 24),
    Sketcher.Constraint("Horizontal", 25),
    Sketcher.Constraint("Vertical", 26),
    Sketcher.Constraint("Horizontal", 27),
    Sketcher.Constraint("Vertical", 28),
    Sketcher.Constraint("Horizontal", 29),
    Sketcher.Constraint("Vertical", 30),
    Sketcher.Constraint("Horizontal", 31),
    Sketcher.Constraint("Vertical", 32),
    Sketcher.Constraint("Horizontal", 33),
    Sketcher.Constraint("Vertical", 34),
    Sketcher.Constraint("Horizontal", 35),
    Sketcher.Constraint("Vertical", 36),
    Sketcher.Constraint("Horizontal", 37),
    Sketcher.Constraint("Vertical", 38),
    Sketcher.Constraint("Horizontal", 39),
    Sketcher.Constraint("Vertical", 40),
    Sketcher.Constraint("Horizontal", 41),
    Sketcher.Constraint("Vertical", 42),
    Sketcher.Constraint("Horizontal", 43),
    Sketcher.Constraint("Vertical", 44),
    Sketcher.Constraint("Horizontal", 45),
    Sketcher.Constraint("Vertical", 46),
    Sketcher.Constraint("Horizontal", 47),
    Sketcher.Constraint("Vertical", 48),
    Sketcher.Constraint("Horizontal", 49),
    Sketcher.Constraint("Vertical", 50),
    Sketcher.Constraint("Horizontal", 51),
    Sketcher.Constraint("Vertical", 52),
    Sketcher.Constraint("Horizontal", 53),
    Sketcher.Constraint("Vertical", 54),
    Sketcher.Constraint("Horizontal", 55),
    Sketcher.Constraint("Vertical", 56),
    Sketcher.Constraint("Horizontal", 57),
    Sketcher.Constraint("Vertical", 58),
    Sketcher.Constraint("Horizontal", 59),
    Sketcher.Constraint("Vertical", 60),
    Sketcher.Constraint("Horizontal", 61),
    Sketcher.Constraint("Vertical", 62),
    Sketcher.Constraint("Horizontal", 63),
    Sketcher.Constraint("Vertical", 64),
    Sketcher.Constraint("Horizontal", 65),
    Sketcher.Constraint("Vertical", 66),
    Sketcher.Constraint("Horizontal", 67),
    Sketcher.Constraint("Vertical", 68),
    Sketcher.Constraint("Horizontal", 69),
    Sketcher.Constraint("Vertical", 70),
    Sketcher.Constraint("Horizontal", 71),
    Sketcher.Constraint("Vertical", 72),
    Sketcher.Constraint("Horizontal", 73),
    Sketcher.Constraint("Vertical", 74),
    Sketcher.Constraint("Horizontal", 75),
    Sketcher.Constraint("Vertical", 76),
    Sketcher.Constraint("Horizontal", 77),
    Sketcher.Constraint("Vertical", 78),
    Sketcher.Constraint("Horizontal", 79),
    Sketcher.Constraint("Vertical", 80),
    Sketcher.Constraint("Horizontal", 81),
    Sketcher.Constraint("Vertical", 82),
    Sketcher.Constraint("Horizontal", 83),
    Sketcher.Constraint("Vertical", 85),
    Sketcher.Constraint("Horizontal", 86),
    Sketcher.Constraint("Vertical", 87),
    Sketcher.Constraint("Horizontal", 88),
    Sketcher.Constraint("PointOnObject", 89, 3, -2),
    Sketcher.Constraint("Horizontal", 5, 2, 16, 2),
    Sketcher.Constraint("Vertical", 3, 2, 56, 2),
    Sketcher.Constraint("Vertical", 11, 2, 73, 2),
    Sketcher.Constraint("Equal", 7, 9),
    Sketcher.Constraint("Equal", 35, 0),
    Sketcher.Constraint("Equal", 79, 8),
    Sketcher.Constraint("Equal", 23, 40),
    Sketcher.Constraint("Equal", 30, 56),
    Sketcher.Constraint("Equal", 88, 85),
    Sketcher.Constraint("DistanceX", 86, 1, 86, 2, 5.0),
    Sketcher.Constraint("Diameter", 84, 1.441828),
    Sketcher.Constraint("Diameter", 89, 1.63203),
    Sketcher.Constraint("DistanceY", 80, 2, 80, 1, 3.862),
    Sketcher.Constraint("DistanceX", 41, 1, 41, 2, 4.13641),
    Sketcher.Constraint("DistanceX", 45, 1, 45, 2, 3.76297),
    Sketcher.Constraint("DistanceX", 69, 1, 69, 2, 1.312852),
    Sketcher.Constraint("DistanceX", 73, 1, 73, 2, 1.846609),
    Sketcher.Constraint("DistanceY", 8, 2, 8, 1, 1.551151),
    Sketcher.Constraint("DistanceY", 20, 2, 20, 1, 2.51139),
    Sketcher.Constraint("DistanceY", 24, 2, 24, 1, 3.47163),
    Sketcher.Constraint("DistanceY", 32, 2, 32, 1, 3.176168),
    Sketcher.Constraint("DistanceY", 48, 2, 48, 1, 3.115539),
    Sketcher.Constraint("DistanceY", 52, 2, 52, 1, 2.63131),
    Sketcher.Constraint("DistanceY", 60, 2, 60, 1, 2.215931),
    Sketcher.Constraint("DistanceY", 76, 2, 76, 1, 2.46188),
    Sketcher.Constraint("DistanceY", -1, 1, 28, 2, 31.288599),
    Sketcher.Constraint("DistanceY", -1, 1, 32, 2, 25.8965),
    Sketcher.Constraint("DistanceX", -1, 1, 41, 2, 1.454902),
    Sketcher.Constraint("DistanceX", 61, 2, -1, 1, 9.329301),
    Sketcher.Constraint("DistanceX", 76, 2, -1, 1, 3.888502),
    Sketcher.Constraint("DistanceX", 1, 1, 1, 2, 1.994334),
    Sketcher.Constraint("DistanceX", 5, 1, 5, 2, 3.619357),
    Sketcher.Constraint("DistanceX", 13, 1, 13, 2, 2.732976),
    Sketcher.Constraint("DistanceX", 17, 1, 17, 2, 2.880716),
    Sketcher.Constraint("DistanceX", 21, 1, 21, 2, 1.625016),
    Sketcher.Constraint("DistanceX", 25, 1, 25, 2, 0.960235),
    Sketcher.Constraint("DistanceX", 29, 1, 29, 2, 1.994338),
    Sketcher.Constraint("DistanceX", 33, 1, 33, 2, 1.107967),
    Sketcher.Constraint("DistanceX", 37, 1, 37, 2, 3.693223),
    Sketcher.Constraint("DistanceX", 49, 1, 49, 2, 1.395884),
    Sketcher.Constraint("DistanceX", 53, 1, 53, 2, 1.446203),
    Sketcher.Constraint("DistanceX", 57, 1, 57, 2, 1.448886),
    Sketcher.Constraint("DistanceX", 61, 1, 61, 2, 1.772745),
    Sketcher.Constraint("DistanceX", 65, 1, 65, 2, 1.625013),
    Sketcher.Constraint("DistanceX", 81, 1, 81, 2, 4.159074),
    Sketcher.Constraint("DistanceY", 4, 2, 4, 1, 1.255696),
    Sketcher.Constraint("DistanceY", 12, 2, 12, 1, 1.403424),
    Sketcher.Constraint("DistanceY", 16, 2, 16, 1, 1.181828),
    Sketcher.Constraint("DistanceY", 28, 2, 28, 1, 3.323896),
    Sketcher.Constraint("DistanceY", 36, 2, 36, 1, 1.477287),
    Sketcher.Constraint("DistanceY", 44, 2, 44, 1, 1.485384),
    Sketcher.Constraint("DistanceY", 64, 2, 64, 1, 2.707825),
    Sketcher.Constraint("DistanceY", 68, 2, 68, 1, 3.187283),
    Sketcher.Constraint("DistanceY", 72, 2, 72, 1, 2.954575),
    Sketcher.Constraint("DistanceY", -1, 1, 89, 3, 64.519768),
    Sketcher.Constraint("DistanceX", 1, 2, -1, 1, 9.62476),
    Sketcher.Constraint("DistanceY", -1, 1, 2, 2, 50.714931),
    Sketcher.Constraint("DistanceY", -1, 1, 4, 2, 49.311508),
    Sketcher.Constraint("DistanceX", 8, 2, -1, 1, 2.016729),
    Sketcher.Constraint("DistanceY", -1, 1, 8, 2, 49.385371),
    Sketcher.Constraint("DistanceY", -1, 1, 24, 2, 37.93639),
    Sketcher.Constraint("DistanceX", -1, 1, 25, 2, 12.46069),
    Sketcher.Constraint("DistanceX", -1, 1, 28, 2, 11.278859),
    Sketcher.Constraint("DistanceX", -1, 1, 32, 2, 11.943642),
    Sketcher.Constraint("DistanceX", -1, 1, 36, 2, 5.148111),
    Sketcher.Constraint("DistanceY", -1, 1, 36, 2, 25.74877),
    Sketcher.Constraint("DistanceY", -1, 1, 46, 2, 27.209341),
    Sketcher.Constraint("DistanceX", 48, 2, -1, 1, 11.840689),
    Sketcher.Constraint("DistanceX", 52, 2, -1, 1, 11.692958),
    Sketcher.Constraint("DistanceX", -1, 1, 64, 2, 3.993069),
    Sketcher.Constraint("DistanceY", -1, 1, 64, 2, 42.891782),
    Sketcher.Constraint("DistanceX", -1, 1, 68, 2, 4.63107),
    Sketcher.Constraint("DistanceY", -1, 1, 68, 2, 32.754771),
    Sketcher.Constraint("DistanceY", -1, 1, 74, 2, 35.35114),
    Sketcher.Constraint("DistanceY", -1, 1, 76, 2, 42.890972),
    Sketcher.Constraint("DistanceX", -1, 1, 81, 2, 2.824618),
    Sketcher.Constraint("DistanceX", -1, 1, 84, 3, 0.844105),
    Sketcher.Constraint("DistanceY", -1, 1, 84, 3, 39.141918),
    Sketcher.Constraint("DistanceX", 4, 2, -1, 1, 7.630424),
    Sketcher.Constraint("DistanceX", -1, 1, 12, 2, 4.114018),
    Sketcher.Constraint("DistanceY", -1, 1, 12, 2, 49.016048),
    Sketcher.Constraint("DistanceX", -1, 1, 16, 2, 9.432247),
    Sketcher.Constraint("DistanceX", -1, 1, 20, 2, 10.909537),
    Sketcher.Constraint("DistanceY", -1, 1, 20, 2, 44.288727),
    Sketcher.Constraint("DistanceY", -1, 1, 40, 2, 25.674906),
    Sketcher.Constraint("DistanceX", 44, 2, -1, 1, 11.484574),
    Sketcher.Constraint("DistanceY", -1, 1, 48, 2, 29.589717),
    Sketcher.Constraint("DistanceY", -1, 1, 52, 2, 35.378948),
    Sketcher.Constraint("DistanceY", -1, 1, 56, 2, 40.399887),
    Sketcher.Constraint("DistanceY", -1, 1, 60, 2, 45.027375),
    Sketcher.Constraint("DistanceY", -1, 1, 80, 2, 37.161407),
    Sketcher.Constraint("DistanceX", 85, 2, -1, 1, 2.475174),
    Sketcher.Constraint("DistanceY", -1, 1, 85, 2, 62.143266),
])
sketch2.setExpression("Constraints[186]", "Params.sketch2_width")
pad2 = body.newObject("PartDesign::Pad", "Pad001")
pad2.Profile = sketch2
pad2.setExpression("Length", "Params.pad2_length")

# Sketch on XY plane
sketch3 = body.newObject("Sketcher::SketchObject", "Sketch002")
sketch3.AttachmentSupport = (doc.getObject("XY_Plane"), [""])
sketch3.MapMode = "FlatFace"
sketch3.addGeometry([
    Part.LineSegment(App.Vector(12.8, 0, 0), App.Vector(-12.8, 0, 0)),  # 0
    Part.LineSegment(App.Vector(-12.8, 0, 0), App.Vector(-12.8, -11.7, 0)),  # 1
    Part.ArcOfCircle(Part.Circle(App.Vector(-7.9, -11.7, 0), App.Vector(0, 0, 1), 5), math.radians(180), math.radians(270)),  # 2
    Part.LineSegment(App.Vector(-7.8, -16.7, 0), App.Vector(7.8, -16.7, 0)),  # 3
    Part.ArcOfCircle(Part.Circle(App.Vector(7.9, -11.7, 0), App.Vector(0, 0, 1), 5), math.radians(-90), math.radians(0)),  # 4
    Part.LineSegment(App.Vector(12.8, -11.7, 0), App.Vector(12.8, 0, 0)),  # 5
], False)
sketch3.addConstraint([
    Sketcher.Constraint("Coincident", 0, 2, 1, 1),
    Sketcher.Constraint("Tangent", 1, 2, 2, 1),
    Sketcher.Constraint("Tangent", 2, 2, 3, 1),
    Sketcher.Constraint("Tangent", 3, 2, 4, 1),
    Sketcher.Constraint("Tangent", 4, 2, 5, 1),
    Sketcher.Constraint("Coincident", 5, 2, 0, 1),
    Sketcher.Constraint("Horizontal", 0),
    Sketcher.Constraint("Vertical", 1),
    Sketcher.Constraint("Horizontal", 3),
    Sketcher.Constraint("Vertical", 5),
    Sketcher.Constraint("Equal", 2, 4),
    Sketcher.Constraint("Symmetric", 0, 2, 5, 2, -1, 1),
    Sketcher.Constraint("Radius", 2, 5.0),
    Sketcher.Constraint("DistanceX", 0, 2, 0, 1, 25.7),
    Sketcher.Constraint("DistanceY", 1, 2, 1, 1, 11.654535),
])
sketch3.setExpression("Constraints[12]", "Params.sketch3_radius")
sketch3.setExpression("Constraints[13]", "Params.sketch3_width")
pad3 = body.newObject("PartDesign::Pad", "Pad002")
pad3.Profile = sketch3
pad3.setExpression("Length", "Params.pad3_length")
body2 = doc.addObject("PartDesign::Body", "Body001")
doc.recompute()

body.Placement = App.Placement(App.Vector(0, 0, 0), App.Rotation(App.Vector(0, 1, 0), 180))
boolean = body2.newObject("PartDesign::Boolean", "Boolean")
boolean.Type = "Fuse"
boolean.addObjects([body])

doc.recompute()
